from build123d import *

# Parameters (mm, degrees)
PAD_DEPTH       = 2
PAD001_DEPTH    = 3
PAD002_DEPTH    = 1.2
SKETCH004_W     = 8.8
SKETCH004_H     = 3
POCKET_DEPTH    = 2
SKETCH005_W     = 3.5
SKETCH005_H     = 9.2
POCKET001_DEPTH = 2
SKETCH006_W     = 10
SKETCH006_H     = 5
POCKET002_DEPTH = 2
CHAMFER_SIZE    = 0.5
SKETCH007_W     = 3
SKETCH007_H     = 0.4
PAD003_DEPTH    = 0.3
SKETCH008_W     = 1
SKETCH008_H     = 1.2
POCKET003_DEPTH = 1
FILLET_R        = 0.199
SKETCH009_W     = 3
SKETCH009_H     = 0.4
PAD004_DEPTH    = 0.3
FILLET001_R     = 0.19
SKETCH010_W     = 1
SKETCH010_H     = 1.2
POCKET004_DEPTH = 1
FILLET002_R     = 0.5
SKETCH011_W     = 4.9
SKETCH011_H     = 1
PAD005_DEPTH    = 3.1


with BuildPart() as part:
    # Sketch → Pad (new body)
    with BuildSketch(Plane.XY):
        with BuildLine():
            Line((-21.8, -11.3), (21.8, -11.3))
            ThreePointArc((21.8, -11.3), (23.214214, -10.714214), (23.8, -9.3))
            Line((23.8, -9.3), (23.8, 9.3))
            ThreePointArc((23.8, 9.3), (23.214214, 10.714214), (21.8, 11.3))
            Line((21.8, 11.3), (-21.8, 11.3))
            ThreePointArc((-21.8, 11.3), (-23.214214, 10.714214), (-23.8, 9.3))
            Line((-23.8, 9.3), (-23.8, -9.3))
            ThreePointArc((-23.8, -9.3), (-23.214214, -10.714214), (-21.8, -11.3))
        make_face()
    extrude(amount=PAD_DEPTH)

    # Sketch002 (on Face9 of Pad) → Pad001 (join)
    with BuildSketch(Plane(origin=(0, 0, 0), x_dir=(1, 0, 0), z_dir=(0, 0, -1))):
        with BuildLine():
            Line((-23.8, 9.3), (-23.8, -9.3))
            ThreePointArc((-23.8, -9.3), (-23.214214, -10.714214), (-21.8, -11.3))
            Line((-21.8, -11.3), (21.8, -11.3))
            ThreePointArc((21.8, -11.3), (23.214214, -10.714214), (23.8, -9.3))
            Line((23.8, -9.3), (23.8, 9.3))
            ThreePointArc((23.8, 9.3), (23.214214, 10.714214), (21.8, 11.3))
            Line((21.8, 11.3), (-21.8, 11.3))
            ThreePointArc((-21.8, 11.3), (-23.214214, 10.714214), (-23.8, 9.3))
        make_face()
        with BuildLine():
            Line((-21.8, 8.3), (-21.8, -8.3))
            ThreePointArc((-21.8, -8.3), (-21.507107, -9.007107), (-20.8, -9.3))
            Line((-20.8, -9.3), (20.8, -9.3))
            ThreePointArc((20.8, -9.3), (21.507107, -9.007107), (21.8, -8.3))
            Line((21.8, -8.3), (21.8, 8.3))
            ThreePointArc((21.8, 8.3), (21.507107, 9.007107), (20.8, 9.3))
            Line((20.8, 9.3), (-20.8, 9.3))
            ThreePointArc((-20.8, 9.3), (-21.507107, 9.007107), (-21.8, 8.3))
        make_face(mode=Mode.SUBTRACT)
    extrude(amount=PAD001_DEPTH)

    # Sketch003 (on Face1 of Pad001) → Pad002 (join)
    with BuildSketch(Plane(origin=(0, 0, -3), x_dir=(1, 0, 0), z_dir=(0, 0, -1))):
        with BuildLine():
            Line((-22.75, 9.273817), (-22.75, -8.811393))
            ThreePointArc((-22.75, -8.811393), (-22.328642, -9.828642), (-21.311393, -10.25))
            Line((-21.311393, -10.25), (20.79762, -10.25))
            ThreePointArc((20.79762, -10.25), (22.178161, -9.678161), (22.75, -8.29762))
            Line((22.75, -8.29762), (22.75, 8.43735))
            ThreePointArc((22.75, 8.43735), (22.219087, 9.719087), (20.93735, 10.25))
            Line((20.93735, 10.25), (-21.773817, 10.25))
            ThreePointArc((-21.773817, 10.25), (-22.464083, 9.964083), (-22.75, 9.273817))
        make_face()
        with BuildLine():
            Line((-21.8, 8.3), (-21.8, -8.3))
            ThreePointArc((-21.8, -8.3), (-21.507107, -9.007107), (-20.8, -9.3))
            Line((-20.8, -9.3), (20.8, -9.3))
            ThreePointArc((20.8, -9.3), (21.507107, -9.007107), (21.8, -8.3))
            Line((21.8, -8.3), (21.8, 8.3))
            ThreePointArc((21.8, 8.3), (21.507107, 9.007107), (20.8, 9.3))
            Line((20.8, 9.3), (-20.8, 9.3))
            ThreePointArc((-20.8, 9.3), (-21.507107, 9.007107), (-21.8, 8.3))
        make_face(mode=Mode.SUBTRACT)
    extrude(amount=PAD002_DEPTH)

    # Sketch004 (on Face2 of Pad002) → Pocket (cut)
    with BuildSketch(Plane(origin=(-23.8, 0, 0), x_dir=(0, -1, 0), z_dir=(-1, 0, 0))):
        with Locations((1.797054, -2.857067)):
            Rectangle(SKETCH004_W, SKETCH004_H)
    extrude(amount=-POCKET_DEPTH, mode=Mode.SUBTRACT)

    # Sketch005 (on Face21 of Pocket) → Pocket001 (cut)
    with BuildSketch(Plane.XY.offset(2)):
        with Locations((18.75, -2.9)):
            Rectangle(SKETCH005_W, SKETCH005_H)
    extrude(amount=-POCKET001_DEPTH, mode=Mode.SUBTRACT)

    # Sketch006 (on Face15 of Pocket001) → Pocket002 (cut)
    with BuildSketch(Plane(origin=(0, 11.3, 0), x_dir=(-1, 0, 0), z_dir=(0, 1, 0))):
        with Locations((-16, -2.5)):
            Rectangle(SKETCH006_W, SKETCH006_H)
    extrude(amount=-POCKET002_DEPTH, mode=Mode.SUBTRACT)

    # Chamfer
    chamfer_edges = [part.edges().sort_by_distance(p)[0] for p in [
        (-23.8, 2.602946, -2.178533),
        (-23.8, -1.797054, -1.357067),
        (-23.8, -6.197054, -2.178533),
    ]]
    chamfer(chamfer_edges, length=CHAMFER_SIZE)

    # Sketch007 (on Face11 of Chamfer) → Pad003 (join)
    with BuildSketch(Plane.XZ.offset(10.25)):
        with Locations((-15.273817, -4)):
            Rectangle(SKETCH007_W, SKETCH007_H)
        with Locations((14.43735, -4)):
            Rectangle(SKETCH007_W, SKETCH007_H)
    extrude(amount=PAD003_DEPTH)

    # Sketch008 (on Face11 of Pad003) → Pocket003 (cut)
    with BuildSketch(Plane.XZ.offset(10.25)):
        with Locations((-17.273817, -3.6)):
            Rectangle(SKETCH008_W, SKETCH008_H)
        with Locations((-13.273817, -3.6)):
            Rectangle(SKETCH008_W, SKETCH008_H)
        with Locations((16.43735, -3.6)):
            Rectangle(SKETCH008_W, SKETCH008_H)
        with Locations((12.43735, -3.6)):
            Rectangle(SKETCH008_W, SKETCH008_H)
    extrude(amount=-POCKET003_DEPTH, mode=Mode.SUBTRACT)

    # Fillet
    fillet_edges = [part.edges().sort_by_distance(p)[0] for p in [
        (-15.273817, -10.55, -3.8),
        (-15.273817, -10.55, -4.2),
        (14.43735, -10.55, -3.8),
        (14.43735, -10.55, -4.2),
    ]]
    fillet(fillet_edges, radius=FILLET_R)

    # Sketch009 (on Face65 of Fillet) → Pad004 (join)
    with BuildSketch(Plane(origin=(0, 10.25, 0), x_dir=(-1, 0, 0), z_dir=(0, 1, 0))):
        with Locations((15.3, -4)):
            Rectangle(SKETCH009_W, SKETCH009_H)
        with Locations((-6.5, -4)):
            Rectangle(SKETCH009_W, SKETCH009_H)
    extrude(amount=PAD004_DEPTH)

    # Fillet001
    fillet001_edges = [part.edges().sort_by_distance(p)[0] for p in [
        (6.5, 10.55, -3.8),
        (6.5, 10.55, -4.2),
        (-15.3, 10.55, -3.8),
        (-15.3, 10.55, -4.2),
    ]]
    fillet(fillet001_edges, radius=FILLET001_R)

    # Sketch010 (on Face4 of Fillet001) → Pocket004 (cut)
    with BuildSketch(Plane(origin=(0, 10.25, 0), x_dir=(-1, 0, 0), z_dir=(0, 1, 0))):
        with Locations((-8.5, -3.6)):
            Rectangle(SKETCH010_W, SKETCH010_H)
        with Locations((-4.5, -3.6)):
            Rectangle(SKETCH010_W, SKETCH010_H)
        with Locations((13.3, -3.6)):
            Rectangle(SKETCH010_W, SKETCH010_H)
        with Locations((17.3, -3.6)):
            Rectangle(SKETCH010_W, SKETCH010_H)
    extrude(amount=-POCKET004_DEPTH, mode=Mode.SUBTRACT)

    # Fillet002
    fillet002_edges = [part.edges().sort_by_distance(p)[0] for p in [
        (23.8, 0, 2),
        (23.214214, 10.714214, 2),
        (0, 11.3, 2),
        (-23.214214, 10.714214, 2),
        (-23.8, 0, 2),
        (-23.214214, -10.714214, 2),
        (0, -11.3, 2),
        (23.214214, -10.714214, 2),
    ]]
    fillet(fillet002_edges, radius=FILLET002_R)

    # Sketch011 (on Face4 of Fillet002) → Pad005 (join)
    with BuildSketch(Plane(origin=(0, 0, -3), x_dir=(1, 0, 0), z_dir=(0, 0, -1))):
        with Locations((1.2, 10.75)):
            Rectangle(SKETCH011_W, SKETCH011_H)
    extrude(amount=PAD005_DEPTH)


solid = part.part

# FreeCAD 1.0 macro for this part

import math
import FreeCAD as App
import Part
import Sketcher

V = App.Vector


def edges_at(feature, points):
    """Names of the edges that pass closest to the given points."""
    edges = feature.Shape.Edges
    near = lambda p: min(range(len(edges)), key=lambda i: edges[i].distToShape(Part.Vertex(*p))[0])
    return sorted({f"Edge{near(p) + 1}" for p in points})


def add_polygon(sketch, points):
    """Adds a closed chain of lines whose ends are joined by coincident constraints."""
    first, n = sketch.GeometryCount, len(points)
    for a, b in zip(points, points[1:] + points[:1]):
        sketch.addGeometry(Part.LineSegment(App.Vector(*a, 0), App.Vector(*b, 0)), False)
    for i in range(n):
        sketch.addConstraint(Sketcher.Constraint("Coincident", first + i, 2, first + (i + 1) % n, 1))

doc = App.newDocument("Part")
params = doc.addObject("Spreadsheet::Sheet", "Params")
for row, (alias, value) in enumerate([
    ("sketch1_radius", "1.999999 mm"),
    ("sketch1_width", "43.6 mm"),
    ("sketch1_height", "18.6 mm"),
    ("pad1_length", "2 mm"),
    ("sketch2_radius", "1.999999 mm"),
    ("sketch2_radius2", "0.999999 mm"),
    ("sketch2_width", "43.6 mm"),
    ("sketch2_height", "18.6 mm"),
    ("pad2_length", "3 mm"),
    ("sketch3_radius", "0.999999 mm"),
    ("sketch3_width", "41.6 mm"),
    ("sketch3_height", "16.6 mm"),
    ("pad3_length", "1.2 mm"),
    ("sketch4_height", "3 mm"),
    ("sketch4_width", "8.8 mm"),
    ("pocket1_length", "2 mm"),
    ("sketch5_width", "3.5 mm"),
    ("sketch5_height", "9.2 mm"),
    ("pocket2_length", "2 mm"),
    ("sketch6_width", "10 mm"),
    ("sketch6_height", "5 mm"),
    ("pocket3_length", "2 mm"),
    ("chamfer_size", "0.5 mm"),
    ("sketch7_width", "3 mm"),
    ("sketch7_height", "0.4 mm"),
    ("pad4_length", "0.3 mm"),
    ("sketch8_width", "1 mm"),
    ("sketch8_height", "1.2 mm"),
    ("pocket4_length", "1 mm"),
    ("fillet_radius", "0.199 mm"),
    ("sketch9_width", "3 mm"),
    ("sketch9_height", "0.4 mm"),
    ("pad5_length", "0.3 mm"),
    ("fillet2_radius", "0.19 mm"),
    ("sketch10_width", "1 mm"),
    ("sketch10_height", "1.2 mm"),
    ("pocket5_length", "1 mm"),
    ("fillet3_radius", "0.5 mm"),
    ("sketch11_height", "1 mm"),
    ("sketch11_width", "4.9 mm"),
    ("pad6_length", "3.1 mm"),
], start=1):
    params.set(f"A{row}", alias)
    params.set(f"B{row}", "=" + value)
    params.setAlias(f"B{row}", alias)

body = doc.addObject("PartDesign::Body", "Body")

# Sketch on XY plane
sketch1 = doc.addObject("Sketcher::SketchObject", "Sketch")
body.addObject(sketch1)
sketch1.AttachmentSupport = (doc.XY_Plane, [""])
sketch1.MapMode = "FlatFace"
sketch1.addGeometry(Part.LineSegment(V(-21.8, -11.3, 0), V(21.8, -11.3, 0)), False)
sketch1.addGeometry(Part.ArcOfCircle(Part.Circle(V(21.8, -9.3, 0), V(0, 0, 1), 2), math.radians(-90), math.radians(0)), False)
sketch1.addGeometry(Part.LineSegment(V(23.8, -9.3, 0), V(23.8, 9.3, 0)), False)
sketch1.addGeometry(Part.ArcOfCircle(Part.Circle(V(21.8, 9.3, 0), V(0, 0, 1), 2), math.radians(0), math.radians(90)), False)
sketch1.addGeometry(Part.LineSegment(V(21.8, 11.3, 0), V(-21.8, 11.3, 0)), False)
sketch1.addGeometry(Part.ArcOfCircle(Part.Circle(V(-21.8, 9.3, 0), V(0, 0, 1), 2), math.radians(90), math.radians(180)), False)
sketch1.addGeometry(Part.LineSegment(V(-23.8, 9.3, 0), V(-23.8, -9.3, 0)), False)
sketch1.addGeometry(Part.ArcOfCircle(Part.Circle(V(-21.8, -9.3, 0), V(0, 0, 1), 2), math.radians(180), math.radians(270)), False)
sketch1.addConstraint(Sketcher.Constraint("Tangent", 0, 2, 1, 1))
sketch1.addConstraint(Sketcher.Constraint("Tangent", 1, 2, 2, 1))
sketch1.addConstraint(Sketcher.Constraint("Tangent", 2, 2, 3, 1))
sketch1.addConstraint(Sketcher.Constraint("Tangent", 3, 2, 4, 1))
sketch1.addConstraint(Sketcher.Constraint("Tangent", 4, 2, 5, 1))
sketch1.addConstraint(Sketcher.Constraint("Tangent", 5, 2, 6, 1))
sketch1.addConstraint(Sketcher.Constraint("Tangent", 6, 2, 7, 1))
sketch1.addConstraint(Sketcher.Constraint("Tangent", 7, 2, 0, 1))
sketch1.addConstraint(Sketcher.Constraint("Horizontal", 0))
sketch1.addConstraint(Sketcher.Constraint("Vertical", 2))
sketch1.addConstraint(Sketcher.Constraint("Horizontal", 4))
sketch1.addConstraint(Sketcher.Constraint("Vertical", 6))
sketch1.addConstraint(Sketcher.Constraint("Equal", 1, 3))
sketch1.addConstraint(Sketcher.Constraint("Equal", 3, 5))
sketch1.addConstraint(Sketcher.Constraint("Equal", 5, 7))
sketch1.addConstraint(Sketcher.Constraint("Symmetric", 1, 3, 5, 3, -1, 1))
sketch1.addConstraint(Sketcher.Constraint("Radius", 1, 1.999999))
sketch1.addConstraint(Sketcher.Constraint("DistanceX", 0, 1, 0, 2, 43.6))
sketch1.addConstraint(Sketcher.Constraint("DistanceY", 2, 1, 2, 2, 18.6))
sketch1.setExpression("Constraints[16]", "Params.sketch1_radius")
sketch1.setExpression("Constraints[17]", "Params.sketch1_width")
sketch1.setExpression("Constraints[18]", "Params.sketch1_height")
pad1 = doc.addObject("PartDesign::Pad", "Pad")
body.addObject(pad1)
pad1.Profile = sketch1
pad1.setExpression("Length", "Params.pad1_length")

# Sketch on XY plane
sketch2 = doc.addObject("Sketcher::SketchObject", "Sketch001")
body.addObject(sketch2)
sketch2.AttachmentSupport = (doc.XY_Plane, [""])
sketch2.MapMode = "FlatFace"
sketch2.addGeometry(Part.LineSegment(V(-23.8, -9.3, 0), V(-23.8, 9.3, 0)), False)
sketch2.addGeometry(Part.ArcOfCircle(Part.Circle(V(-21.8, 9.3, 0), V(0, 0, 1), 2), math.radians(90), math.radians(180)), False)
sketch2.addGeometry(Part.LineSegment(V(-21.8, 11.3, 0), V(21.8, 11.3, 0)), False)
sketch2.addGeometry(Part.ArcOfCircle(Part.Circle(V(21.8, 9.3, 0), V(0, 0, 1), 2), math.radians(0), math.radians(90)), False)
sketch2.addGeometry(Part.LineSegment(V(23.8, 9.3, 0), V(23.8, -9.3, 0)), False)
sketch2.addGeometry(Part.ArcOfCircle(Part.Circle(V(21.8, -9.3, 0), V(0, 0, 1), 2), math.radians(-90), math.radians(0)), False)
sketch2.addGeometry(Part.LineSegment(V(21.8, -11.3, 0), V(-21.8, -11.3, 0)), False)
sketch2.addGeometry(Part.ArcOfCircle(Part.Circle(V(-21.8, -9.3, 0), V(0, 0, 1), 2), math.radians(180), math.radians(270)), False)
sketch2.addGeometry(Part.LineSegment(V(-21.8, 8.3, 0), V(-21.8, -8.3, 0)), False)
sketch2.addGeometry(Part.ArcOfCircle(Part.Circle(V(-20.8, -8.3, 0), V(0, 0, 1), 1), math.radians(180), math.radians(270)), False)
sketch2.addGeometry(Part.LineSegment(V(-20.8, -9.3, 0), V(20.8, -9.3, 0)), False)
sketch2.addGeometry(Part.ArcOfCircle(Part.Circle(V(20.8, -8.3, 0), V(0, 0, 1), 1), math.radians(-90), math.radians(0)), False)
sketch2.addGeometry(Part.LineSegment(V(21.8, -8.3, 0), V(21.8, 8.3, 0)), False)
sketch2.addGeometry(Part.ArcOfCircle(Part.Circle(V(20.8, 8.3, 0), V(0, 0, 1), 1), math.radians(0), math.radians(90)), False)
sketch2.addGeometry(Part.LineSegment(V(20.8, 9.3, 0), V(-20.8, 9.3, 0)), False)
sketch2.addGeometry(Part.ArcOfCircle(Part.Circle(V(-20.8, 8.3, 0), V(0, 0, 1), 1), math.radians(90), math.radians(180)), False)
sketch2.addConstraint(Sketcher.Constraint("Tangent", 0, 2, 1, 2))
sketch2.addConstraint(Sketcher.Constraint("Tangent", 1, 1, 2, 1))
sketch2.addConstraint(Sketcher.Constraint("Tangent", 2, 2, 3, 2))
sketch2.addConstraint(Sketcher.Constraint("Tangent", 3, 1, 4, 1))
sketch2.addConstraint(Sketcher.Constraint("Tangent", 4, 2, 5, 2))
sketch2.addConstraint(Sketcher.Constraint("Tangent", 5, 1, 6, 1))
sketch2.addConstraint(Sketcher.Constraint("Tangent", 6, 2, 7, 2))
sketch2.addConstraint(Sketcher.Constraint("Tangent", 7, 1, 0, 1))
sketch2.addConstraint(Sketcher.Constraint("Tangent", 8, 2, 9, 1))
sketch2.addConstraint(Sketcher.Constraint("Tangent", 9, 2, 10, 1))
sketch2.addConstraint(Sketcher.Constraint("Tangent", 10, 2, 11, 1))
sketch2.addConstraint(Sketcher.Constraint("Tangent", 11, 2, 12, 1))
sketch2.addConstraint(Sketcher.Constraint("Tangent", 12, 2, 13, 1))
sketch2.addConstraint(Sketcher.Constraint("Tangent", 13, 2, 14, 1))
sketch2.addConstraint(Sketcher.Constraint("Tangent", 14, 2, 15, 1))
sketch2.addConstraint(Sketcher.Constraint("Tangent", 15, 2, 8, 1))
sketch2.addConstraint(Sketcher.Constraint("Vertical", 0))
sketch2.addConstraint(Sketcher.Constraint("Horizontal", 2))
sketch2.addConstraint(Sketcher.Constraint("Vertical", 4))
sketch2.addConstraint(Sketcher.Constraint("Horizontal", 6))
sketch2.addConstraint(Sketcher.Constraint("Vertical", 8))
sketch2.addConstraint(Sketcher.Constraint("Horizontal", 10))
sketch2.addConstraint(Sketcher.Constraint("Vertical", 12))
sketch2.addConstraint(Sketcher.Constraint("Horizontal", 14))
sketch2.addConstraint(Sketcher.Constraint("Equal", 1, 3))
sketch2.addConstraint(Sketcher.Constraint("Equal", 3, 5))
sketch2.addConstraint(Sketcher.Constraint("Equal", 5, 7))
sketch2.addConstraint(Sketcher.Constraint("Equal", 9, 11))
sketch2.addConstraint(Sketcher.Constraint("Equal", 11, 13))
sketch2.addConstraint(Sketcher.Constraint("Equal", 13, 15))
sketch2.addConstraint(Sketcher.Constraint("Symmetric", 1, 3, 5, 3, -1, 1))
sketch2.addConstraint(Sketcher.Constraint("Symmetric", 9, 3, 13, 3, -1, 1))
sketch2.addConstraint(Sketcher.Constraint("Horizontal", 7, 1, 9, 2))
sketch2.addConstraint(Sketcher.Constraint("Vertical", 6, 2, 8, 2))
sketch2.addConstraint(Sketcher.Constraint("Radius", 1, 1.999999))
sketch2.addConstraint(Sketcher.Constraint("Radius", 9, 0.999999))
sketch2.addConstraint(Sketcher.Constraint("DistanceX", 2, 1, 2, 2, 43.6))
sketch2.addConstraint(Sketcher.Constraint("DistanceY", 0, 1, 0, 2, 18.6))
sketch2.setExpression("Constraints[34]", "Params.sketch2_radius")
sketch2.setExpression("Constraints[35]", "Params.sketch2_radius2")
sketch2.setExpression("Constraints[36]", "Params.sketch2_width")
sketch2.setExpression("Constraints[37]", "Params.sketch2_height")
pad2 = doc.addObject("PartDesign::Pad", "Pad001")
body.addObject(pad2)
pad2.Profile = sketch2
pad2.setExpression("Length", "Params.pad2_length")
pad2.Reversed = True

# Sketch on XY plane
sketch3 = doc.addObject("Sketcher::SketchObject", "Sketch002")
body.addObject(sketch3)
sketch3.AttachmentSupport = (doc.XY_Plane, [""])
sketch3.MapMode = "FlatFace"
sketch3.AttachmentOffset = App.Placement(V(0, 0, -3), App.Rotation())
sketch3.addGeometry(Part.LineSegment(V(-22.8, -9.3, 0), V(-22.8, 8.8, 0)), False)
sketch3.addGeometry(Part.ArcOfCircle(Part.Circle(V(-21.3, 8.8, 0), V(0, 0, 1), 1.4), math.radians(90), math.radians(180)), False)
sketch3.addGeometry(Part.LineSegment(V(-21.3, 10.2, 0), V(20.8, 10.2, 0)), False)
sketch3.addGeometry(Part.ArcOfCircle(Part.Circle(V(20.8, 8.3, 0), V(0, 0, 1), 2), math.radians(0), math.radians(90)), False)
sketch3.addGeometry(Part.LineSegment(V(22.8, 8.3, 0), V(22.8, -8.4, 0)), False)
sketch3.addGeometry(Part.ArcOfCircle(Part.Circle(V(20.9, -8.4, 0), V(0, 0, 1), 1.8), math.radians(-90), math.radians(0)), False)
sketch3.addGeometry(Part.LineSegment(V(20.9, -10.2, 0), V(-21.8, -10.2, 0)), False)
sketch3.addGeometry(Part.ArcOfCircle(Part.Circle(V(-21.8, -9.3, 0), V(0, 0, 1), 1), math.radians(180), math.radians(270)), False)
sketch3.addGeometry(Part.LineSegment(V(-21.8, 8.3, 0), V(-21.8, -8.3, 0)), False)
sketch3.addGeometry(Part.ArcOfCircle(Part.Circle(V(-20.8, -8.3, 0), V(0, 0, 1), 1), math.radians(180), math.radians(270)), False)
sketch3.addGeometry(Part.LineSegment(V(-20.8, -9.3, 0), V(20.8, -9.3, 0)), False)
sketch3.addGeometry(Part.ArcOfCircle(Part.Circle(V(20.8, -8.3, 0), V(0, 0, 1), 1), math.radians(-90), math.radians(0)), False)
sketch3.addGeometry(Part.LineSegment(V(21.8, -8.3, 0), V(21.8, 8.3, 0)), False)
sketch3.addGeometry(Part.ArcOfCircle(Part.Circle(V(20.8, 8.3, 0), V(0, 0, 1), 1), math.radians(0), math.radians(90)), False)
sketch3.addGeometry(Part.LineSegment(V(20.8, 9.3, 0), V(-20.8, 9.3, 0)), False)
sketch3.addGeometry(Part.ArcOfCircle(Part.Circle(V(-20.8, 8.3, 0), V(0, 0, 1), 1), math.radians(90), math.radians(180)), False)
sketch3.addConstraint(Sketcher.Constraint("Tangent", 0, 2, 1, 2))
sketch3.addConstraint(Sketcher.Constraint("Tangent", 1, 1, 2, 1))
sketch3.addConstraint(Sketcher.Constraint("Tangent", 2, 2, 3, 2))
sketch3.addConstraint(Sketcher.Constraint("Tangent", 3, 1, 4, 1))
sketch3.addConstraint(Sketcher.Constraint("Tangent", 4, 2, 5, 2))
sketch3.addConstraint(Sketcher.Constraint("Tangent", 5, 1, 6, 1))
sketch3.addConstraint(Sketcher.Constraint("Tangent", 6, 2, 7, 2))
sketch3.addConstraint(Sketcher.Constraint("Tangent", 7, 1, 0, 1))
sketch3.addConstraint(Sketcher.Constraint("Tangent", 8, 2, 9, 1))
sketch3.addConstraint(Sketcher.Constraint("Tangent", 9, 2, 10, 1))
sketch3.addConstraint(Sketcher.Constraint("Tangent", 10, 2, 11, 1))
sketch3.addConstraint(Sketcher.Constraint("Tangent", 11, 2, 12, 1))
sketch3.addConstraint(Sketcher.Constraint("Tangent", 12, 2, 13, 1))
sketch3.addConstraint(Sketcher.Constraint("Tangent", 13, 2, 14, 1))
sketch3.addConstraint(Sketcher.Constraint("Tangent", 14, 2, 15, 1))
sketch3.addConstraint(Sketcher.Constraint("Tangent", 15, 2, 8, 1))
sketch3.addConstraint(Sketcher.Constraint("Vertical", 0))
sketch3.addConstraint(Sketcher.Constraint("Horizontal", 2))
sketch3.addConstraint(Sketcher.Constraint("Vertical", 4))
sketch3.addConstraint(Sketcher.Constraint("Horizontal", 6))
sketch3.addConstraint(Sketcher.Constraint("Vertical", 8))
sketch3.addConstraint(Sketcher.Constraint("Horizontal", 10))
sketch3.addConstraint(Sketcher.Constraint("Vertical", 12))
sketch3.addConstraint(Sketcher.Constraint("Horizontal", 14))
sketch3.addConstraint(Sketcher.Constraint("Equal", 9, 11))
sketch3.addConstraint(Sketcher.Constraint("Equal", 11, 13))
sketch3.addConstraint(Sketcher.Constraint("Equal", 13, 15))
sketch3.addConstraint(Sketcher.Constraint("Symmetric", 9, 3, 13, 3, -1, 1))
sketch3.addConstraint(Sketcher.Constraint("Radius", 9, 0.999999))
sketch3.addConstraint(Sketcher.Constraint("DistanceX", 10, 1, 10, 2, 41.6))
sketch3.addConstraint(Sketcher.Constraint("DistanceY", 8, 2, 8, 1, 16.6))
sketch3.addConstraint(Sketcher.Constraint("DistanceX", 0, 2, -1, 1, 22.75))
sketch3.addConstraint(Sketcher.Constraint("DistanceY", -1, 1, 1, 1, 10.25))
sketch3.addConstraint(Sketcher.Constraint("DistanceX", -1, 1, 3, 1, 22.75))
sketch3.addConstraint(Sketcher.Constraint("DistanceY", 5, 1, -1, 1, 10.25))
sketch3.addConstraint(Sketcher.Constraint("Radius", 3, 1.95238))
sketch3.addConstraint(Sketcher.Constraint("Radius", 5, 1.81265))
sketch3.addConstraint(Sketcher.Constraint("Radius", 7, 0.976182))
sketch3.addConstraint(Sketcher.Constraint("Radius", 1, 1.438606))
sketch3.setExpression("Constraints[28]", "Params.sketch3_radius")
sketch3.setExpression("Constraints[29]", "Params.sketch3_width")
sketch3.setExpression("Constraints[30]", "Params.sketch3_height")
pad3 = doc.addObject("PartDesign::Pad", "Pad002")
body.addObject(pad3)
pad3.Profile = sketch3
pad3.setExpression("Length", "Params.pad3_length")
pad3.Reversed = True

# Sketch on YZ plane
sketch4 = doc.addObject("Sketcher::SketchObject", "Sketch003")
body.addObject(sketch4)
sketch4.AttachmentSupport = (doc.YZ_Plane, [""])
sketch4.MapMode = "FlatFace"
sketch4.AttachmentOffset = App.Placement(V(0, 0, -23.8), App.Rotation())
add_polygon(sketch4, [(2.6, -1.4), (2.6, -4.4), (-6.2, -4.4), (-6.2, -1.4)])  # lines 0-3
sketch4.addConstraint(Sketcher.Constraint("Vertical", 0))
sketch4.addConstraint(Sketcher.Constraint("Horizontal", 1))
sketch4.addConstraint(Sketcher.Constraint("Vertical", 2))
sketch4.addConstraint(Sketcher.Constraint("Horizontal", 3))
sketch4.addConstraint(Sketcher.Constraint("DistanceY", 0, 2, 0, 1, 3.0))
sketch4.addConstraint(Sketcher.Constraint("DistanceX", 1, 2, 1, 1, 8.8))
sketch4.addConstraint(Sketcher.Constraint("DistanceX", -1, 1, 0, 2, 2.602946))
sketch4.addConstraint(Sketcher.Constraint("DistanceY", 0, 2, -1, 1, 4.357067))
sketch4.setExpression("Constraints[8]", "Params.sketch4_height")
sketch4.setExpression("Constraints[9]", "Params.sketch4_width")
pocket1 = doc.addObject("PartDesign::Pocket", "Pocket")
body.addObject(pocket1)
pocket1.Profile = sketch4
pocket1.setExpression("Length", "Params.pocket1_length")
pocket1.Reversed = True

# Sketch on XY plane
sketch5 = doc.addObject("Sketcher::SketchObject", "Sketch004")
body.addObject(sketch5)
sketch5.AttachmentSupport = (doc.XY_Plane, [""])
sketch5.MapMode = "FlatFace"
sketch5.AttachmentOffset = App.Placement(V(0, 0, 2), App.Rotation())
add_polygon(sketch5, [(17, 1.7), (17, -7.5), (20.5, -7.5), (20.5, 1.7)])  # lines 0-3
sketch5.addConstraint(Sketcher.Constraint("Vertical", 0))
sketch5.addConstraint(Sketcher.Constraint("Horizontal", 1))
sketch5.addConstraint(Sketcher.Constraint("Vertical", 2))
sketch5.addConstraint(Sketcher.Constraint("Horizontal", 3))
sketch5.addConstraint(Sketcher.Constraint("DistanceX", 1, 1, 1, 2, 3.5))
sketch5.addConstraint(Sketcher.Constraint("DistanceY", 0, 2, 0, 1, 9.2))
sketch5.addConstraint(Sketcher.Constraint("DistanceX", -1, 1, 0, 2, 17.0))
sketch5.addConstraint(Sketcher.Constraint("DistanceY", 0, 2, -1, 1, 7.5))
sketch5.setExpression("Constraints[8]", "Params.sketch5_width")
sketch5.setExpression("Constraints[9]", "Params.sketch5_height")
pocket2 = doc.addObject("PartDesign::Pocket", "Pocket001")
body.addObject(pocket2)
pocket2.Profile = sketch5
pocket2.setExpression("Length", "Params.pocket2_length")

# Sketch on XZ plane
sketch6 = doc.addObject("Sketcher::SketchObject", "Sketch005")
body.addObject(sketch6)
sketch6.AttachmentSupport = (doc.XZ_Plane, [""])
sketch6.MapMode = "FlatFace"
sketch6.AttachmentOffset = App.Placement(V(0, 0, -11.3), App.Rotation())
add_polygon(sketch6, [(21, 0), (21, -5), (11, -5), (11, 0)])  # lines 0-3
sketch6.addConstraint(Sketcher.Constraint("Vertical", 0))
sketch6.addConstraint(Sketcher.Constraint("Horizontal", 1))
sketch6.addConstraint(Sketcher.Constraint("Vertical", 2))
sketch6.addConstraint(Sketcher.Constraint("Horizontal", 3))
sketch6.addConstraint(Sketcher.Constraint("PointOnObject", 2, 2, -1))
sketch6.addConstraint(Sketcher.Constraint("DistanceX", 1, 2, 1, 1, 10.0))
sketch6.addConstraint(Sketcher.Constraint("DistanceY", 0, 2, 0, 1, 5.0))
sketch6.addConstraint(Sketcher.Constraint("DistanceX", -1, 1, 0, 2, 21.0))
sketch6.setExpression("Constraints[9]", "Params.sketch6_width")
sketch6.setExpression("Constraints[10]", "Params.sketch6_height")
pocket3 = doc.addObject("PartDesign::Pocket", "Pocket002")
body.addObject(pocket3)
pocket3.Profile = sketch6
pocket3.setExpression("Length", "Params.pocket3_length")
pocket3.Reversed = True
doc.recompute()

chamfer = doc.addObject("PartDesign::Chamfer", "Chamfer")
body.addObject(chamfer)
chamfer.Base = (pocket3, edges_at(pocket3, [(-23.8, 2.603, -2.179), (-23.8, -1.797, -1.357), (-23.8, -6.197, -2.179)]))
chamfer.setExpression("Size", "Params.chamfer_size")

# Sketch on XZ plane
sketch7 = doc.addObject("Sketcher::SketchObject", "Sketch006")
body.addObject(sketch7)
sketch7.AttachmentSupport = (doc.XZ_Plane, [""])
sketch7.MapMode = "FlatFace"
sketch7.AttachmentOffset = App.Placement(V(0, 0, 10.25), App.Rotation())
add_polygon(sketch7, [(-16.77, -3.8), (-16.77, -4.2), (-13.77, -4.2), (-13.77, -3.8)])  # lines 0-3
add_polygon(sketch7, [(12.94, -3.8), (12.94, -4.2), (15.94, -4.2), (15.94, -3.8)])  # lines 4-7
sketch7.addConstraint(Sketcher.Constraint("Vertical", 0))
sketch7.addConstraint(Sketcher.Constraint("Horizontal", 1))
sketch7.addConstraint(Sketcher.Constraint("Vertical", 2))
sketch7.addConstraint(Sketcher.Constraint("Horizontal", 3))
sketch7.addConstraint(Sketcher.Constraint("Vertical", 4))
sketch7.addConstraint(Sketcher.Constraint("Horizontal", 5))
sketch7.addConstraint(Sketcher.Constraint("Vertical", 6))
sketch7.addConstraint(Sketcher.Constraint("Horizontal", 7))
sketch7.addConstraint(Sketcher.Constraint("Horizontal", 1, 2, 4, 2))
sketch7.addConstraint(Sketcher.Constraint("Horizontal", 3, 2, 6, 2))
sketch7.addConstraint(Sketcher.Constraint("Equal", 3, 5))
sketch7.addConstraint(Sketcher.Constraint("DistanceX", 1, 1, 1, 2, 3.0))
sketch7.addConstraint(Sketcher.Constraint("DistanceY", 0, 2, 0, 1, 0.4))
sketch7.addConstraint(Sketcher.Constraint("DistanceY", 0, 2, -1, 1, 4.2))
sketch7.addConstraint(Sketcher.Constraint("DistanceX", -1, 1, 4, 2, 12.93735))
sketch7.addConstraint(Sketcher.Constraint("DistanceX", 0, 2, -1, 1, 16.773817))
sketch7.setExpression("Constraints[19]", "Params.sketch7_width")
sketch7.setExpression("Constraints[20]", "Params.sketch7_height")
pad4 = doc.addObject("PartDesign::Pad", "Pad003")
body.addObject(pad4)
pad4.Profile = sketch7
pad4.setExpression("Length", "Params.pad4_length")

# Sketch on XZ plane
sketch8 = doc.addObject("Sketcher::SketchObject", "Sketch007")
body.addObject(sketch8)
sketch8.AttachmentSupport = (doc.XZ_Plane, [""])
sketch8.MapMode = "FlatFace"
sketch8.AttachmentOffset = App.Placement(V(0, 0, 10.25), App.Rotation())
add_polygon(sketch8, [(-17.8, -3), (-17.8, -4.2), (-16.8, -4.2), (-16.8, -3)])  # lines 0-3
add_polygon(sketch8, [(-13.8, -3), (-13.8, -4.2), (-12.8, -4.2), (-12.8, -3)])  # lines 4-7
add_polygon(sketch8, [(15.9, -3), (15.9, -4.2), (16.9, -4.2), (16.9, -3)])  # lines 8-11
add_polygon(sketch8, [(11.9, -3), (11.9, -4.2), (12.9, -4.2), (12.9, -3)])  # lines 12-15
sketch8.addConstraint(Sketcher.Constraint("Vertical", 0))
sketch8.addConstraint(Sketcher.Constraint("Horizontal", 1))
sketch8.addConstraint(Sketcher.Constraint("Vertical", 2))
sketch8.addConstraint(Sketcher.Constraint("Horizontal", 3))
sketch8.addConstraint(Sketcher.Constraint("Vertical", 4))
sketch8.addConstraint(Sketcher.Constraint("Horizontal", 5))
sketch8.addConstraint(Sketcher.Constraint("Vertical", 6))
sketch8.addConstraint(Sketcher.Constraint("Horizontal", 7))
sketch8.addConstraint(Sketcher.Constraint("Vertical", 8))
sketch8.addConstraint(Sketcher.Constraint("Horizontal", 9))
sketch8.addConstraint(Sketcher.Constraint("Vertical", 10))
sketch8.addConstraint(Sketcher.Constraint("Horizontal", 11))
sketch8.addConstraint(Sketcher.Constraint("Vertical", 12))
sketch8.addConstraint(Sketcher.Constraint("Horizontal", 13))
sketch8.addConstraint(Sketcher.Constraint("Vertical", 14))
sketch8.addConstraint(Sketcher.Constraint("Horizontal", 15))
sketch8.addConstraint(Sketcher.Constraint("Horizontal", 1, 2, 4, 2))
sketch8.addConstraint(Sketcher.Constraint("Horizontal", 3, 2, 6, 2))
sketch8.addConstraint(Sketcher.Constraint("Horizontal", 5, 2, 8, 2))
sketch8.addConstraint(Sketcher.Constraint("Horizontal", 7, 2, 10, 2))
sketch8.addConstraint(Sketcher.Constraint("Horizontal", 9, 2, 12, 2))
sketch8.addConstraint(Sketcher.Constraint("Horizontal", 11, 2, 14, 2))
sketch8.addConstraint(Sketcher.Constraint("Equal", 3, 5))
sketch8.addConstraint(Sketcher.Constraint("Equal", 7, 9))
sketch8.addConstraint(Sketcher.Constraint("Equal", 11, 13))
sketch8.addConstraint(Sketcher.Constraint("DistanceX", 1, 1, 1, 2, 1.0))
sketch8.addConstraint(Sketcher.Constraint("DistanceY", 0, 2, 0, 1, 1.2))
sketch8.addConstraint(Sketcher.Constraint("DistanceY", 2, 2, -1, 1, 3.0))
sketch8.addConstraint(Sketcher.Constraint("DistanceX", 1, 2, 4, 2, 3.0))
sketch8.addConstraint(Sketcher.Constraint("DistanceX", 12, 2, 8, 2, 4.0))
sketch8.addConstraint(Sketcher.Constraint("DistanceX", -1, 1, 8, 2, 15.93735))
sketch8.addConstraint(Sketcher.Constraint("DistanceX", 0, 2, -1, 1, 17.773817))
sketch8.setExpression("Constraints[41]", "Params.sketch8_width")
sketch8.setExpression("Constraints[42]", "Params.sketch8_height")
pocket4 = doc.addObject("PartDesign::Pocket", "Pocket003")
body.addObject(pocket4)
pocket4.Profile = sketch8
pocket4.setExpression("Length", "Params.pocket4_length")
doc.recompute()

fillet = doc.addObject("PartDesign::Fillet", "Fillet")
body.addObject(fillet)
fillet.Base = (pocket4, edges_at(pocket4, [
    (-15.274, -10.55, -3.8),
    (-15.274, -10.55, -4.2),
    (14.437, -10.55, -3.8),
    (14.437, -10.55, -4.2),
]))
fillet.setExpression("Radius", "Params.fillet_radius")

# Sketch on XZ plane
sketch9 = doc.addObject("Sketcher::SketchObject", "Sketch008")
body.addObject(sketch9)
sketch9.AttachmentSupport = (doc.XZ_Plane, [""])
sketch9.MapMode = "FlatFace"
sketch9.AttachmentOffset = App.Placement(V(0, 0, -10.25), App.Rotation())
add_polygon(sketch9, [(-13.8, -3.8), (-13.8, -4.2), (-16.8, -4.2), (-16.8, -3.8)])  # lines 0-3
add_polygon(sketch9, [(8, -3.8), (8, -4.2), (5, -4.2), (5, -3.8)])  # lines 4-7
sketch9.addConstraint(Sketcher.Constraint("Vertical", 0))
sketch9.addConstraint(Sketcher.Constraint("Horizontal", 1))
sketch9.addConstraint(Sketcher.Constraint("Vertical", 2))
sketch9.addConstraint(Sketcher.Constraint("Horizontal", 3))
sketch9.addConstraint(Sketcher.Constraint("Vertical", 4))
sketch9.addConstraint(Sketcher.Constraint("Horizontal", 5))
sketch9.addConstraint(Sketcher.Constraint("Vertical", 6))
sketch9.addConstraint(Sketcher.Constraint("Horizontal", 7))
sketch9.addConstraint(Sketcher.Constraint("Horizontal", 1, 2, 4, 2))
sketch9.addConstraint(Sketcher.Constraint("Horizontal", 3, 2, 6, 2))
sketch9.addConstraint(Sketcher.Constraint("Equal", 3, 5))
sketch9.addConstraint(Sketcher.Constraint("DistanceX", 1, 2, 1, 1, 3.0))
sketch9.addConstraint(Sketcher.Constraint("DistanceY", 0, 2, 0, 1, 0.4))
sketch9.addConstraint(Sketcher.Constraint("DistanceX", -1, 1, 4, 2, 8.0))
sketch9.addConstraint(Sketcher.Constraint("DistanceX", 0, 2, -1, 1, 13.8))
sketch9.addConstraint(Sketcher.Constraint("DistanceY", 0, 2, -1, 1, 4.2))
sketch9.setExpression("Constraints[19]", "Params.sketch9_width")
sketch9.setExpression("Constraints[20]", "Params.sketch9_height")
pad5 = doc.addObject("PartDesign::Pad", "Pad004")
body.addObject(pad5)
pad5.Profile = sketch9
pad5.setExpression("Length", "Params.pad5_length")
pad5.Reversed = True
doc.recompute()

fillet2 = doc.addObject("PartDesign::Fillet", "Fillet001")
body.addObject(fillet2)
fillet2.Base = (pad5, edges_at(pad5, [
    (6.5, 10.55, -3.8),
    (6.5, 10.55, -4.2),
    (-15.3, 10.55, -3.8),
    (-15.3, 10.55, -4.2),
]))
fillet2.setExpression("Radius", "Params.fillet2_radius")

# Sketch on XZ plane
sketch10 = doc.addObject("Sketcher::SketchObject", "Sketch009")
body.addObject(sketch10)
sketch10.AttachmentSupport = (doc.XZ_Plane, [""])
sketch10.MapMode = "FlatFace"
sketch10.AttachmentOffset = App.Placement(V(0, 0, -10.25), App.Rotation())
add_polygon(sketch10, [(9, -3), (9, -4.2), (8, -4.2), (8, -3)])  # lines 0-3
add_polygon(sketch10, [(5, -3), (5, -4.2), (4, -4.2), (4, -3)])  # lines 4-7
add_polygon(sketch10, [(-12.8, -3), (-12.8, -4.2), (-13.8, -4.2), (-13.8, -3)])  # lines 8-11
add_polygon(sketch10, [(-16.8, -3), (-16.8, -4.2), (-17.8, -4.2), (-17.8, -3)])  # lines 12-15
sketch10.addConstraint(Sketcher.Constraint("Vertical", 0))
sketch10.addConstraint(Sketcher.Constraint("Horizontal", 1))
sketch10.addConstraint(Sketcher.Constraint("Vertical", 2))
sketch10.addConstraint(Sketcher.Constraint("Horizontal", 3))
sketch10.addConstraint(Sketcher.Constraint("Vertical", 4))
sketch10.addConstraint(Sketcher.Constraint("Horizontal", 5))
sketch10.addConstraint(Sketcher.Constraint("Vertical", 6))
sketch10.addConstraint(Sketcher.Constraint("Horizontal", 7))
sketch10.addConstraint(Sketcher.Constraint("Vertical", 8))
sketch10.addConstraint(Sketcher.Constraint("Horizontal", 9))
sketch10.addConstraint(Sketcher.Constraint("Vertical", 10))
sketch10.addConstraint(Sketcher.Constraint("Horizontal", 11))
sketch10.addConstraint(Sketcher.Constraint("Vertical", 12))
sketch10.addConstraint(Sketcher.Constraint("Horizontal", 13))
sketch10.addConstraint(Sketcher.Constraint("Vertical", 14))
sketch10.addConstraint(Sketcher.Constraint("Horizontal", 15))
sketch10.addConstraint(Sketcher.Constraint("Horizontal", 1, 2, 4, 2))
sketch10.addConstraint(Sketcher.Constraint("Horizontal", 3, 2, 6, 2))
sketch10.addConstraint(Sketcher.Constraint("Horizontal", 5, 2, 8, 2))
sketch10.addConstraint(Sketcher.Constraint("Horizontal", 7, 2, 10, 2))
sketch10.addConstraint(Sketcher.Constraint("Horizontal", 9, 2, 12, 2))
sketch10.addConstraint(Sketcher.Constraint("Horizontal", 11, 2, 14, 2))
sketch10.addConstraint(Sketcher.Constraint("Equal", 3, 5))
sketch10.addConstraint(Sketcher.Constraint("Equal", 7, 9))
sketch10.addConstraint(Sketcher.Constraint("Equal", 11, 13))
sketch10.addConstraint(Sketcher.Constraint("DistanceX", 1, 2, 1, 1, 1.0))
sketch10.addConstraint(Sketcher.Constraint("DistanceY", 0, 2, 0, 1, 1.2))
sketch10.addConstraint(Sketcher.Constraint("DistanceX", -1, 1, 0, 2, 9.0))
sketch10.addConstraint(Sketcher.Constraint("DistanceY", 2, 2, -1, 1, 3.0))
sketch10.addConstraint(Sketcher.Constraint("DistanceX", -1, 1, 4, 2, 5.0))
sketch10.addConstraint(Sketcher.Constraint("DistanceX", 12, 2, 9, 2, 3.0))
sketch10.addConstraint(Sketcher.Constraint("DistanceX", 8, 2, -1, 1, 12.8))
sketch10.setExpression("Constraints[41]", "Params.sketch10_width")
sketch10.setExpression("Constraints[42]", "Params.sketch10_height")
pocket5 = doc.addObject("PartDesign::Pocket", "Pocket004")
body.addObject(pocket5)
pocket5.Profile = sketch10
pocket5.setExpression("Length", "Params.pocket5_length")
pocket5.Reversed = True
doc.recompute()

fillet3 = doc.addObject("PartDesign::Fillet", "Fillet002")
body.addObject(fillet3)
fillet3.Base = (pocket5, edges_at(pocket5, [
    (23.8, 0, 2),
    (23.214, 10.714, 2),
    (0, 11.3, 2),
    (-23.214, 10.714, 2),
    (-23.8, 0, 2),
    (-23.214, -10.714, 2),
    (0, -11.3, 2),
    (23.214, -10.714, 2),
]))
fillet3.setExpression("Radius", "Params.fillet3_radius")

# Sketch on XY plane
sketch11 = doc.addObject("Sketcher::SketchObject", "Sketch010")
body.addObject(sketch11)
sketch11.AttachmentSupport = (doc.XY_Plane, [""])
sketch11.MapMode = "FlatFace"
sketch11.AttachmentOffset = App.Placement(V(0, 0, -3), App.Rotation())
add_polygon(sketch11, [(-1.2, -11.2), (-1.2, -10.2), (3.6, -10.2), (3.6, -11.2)])  # lines 0-3
sketch11.addConstraint(Sketcher.Constraint("Vertical", 0))
sketch11.addConstraint(Sketcher.Constraint("Horizontal", 1))
sketch11.addConstraint(Sketcher.Constraint("Vertical", 2))
sketch11.addConstraint(Sketcher.Constraint("Horizontal", 3))
sketch11.addConstraint(Sketcher.Constraint("DistanceY", 0, 1, 0, 2, 1.0))
sketch11.addConstraint(Sketcher.Constraint("DistanceX", 1, 1, 1, 2, 4.9))
sketch11.addConstraint(Sketcher.Constraint("DistanceX", 0, 2, -1, 1, 1.25))
sketch11.addConstraint(Sketcher.Constraint("DistanceY", 0, 2, -1, 1, 10.25))
sketch11.setExpression("Constraints[8]", "Params.sketch11_height")
sketch11.setExpression("Constraints[9]", "Params.sketch11_width")
pad6 = doc.addObject("PartDesign::Pad", "Pad005")
body.addObject(pad6)
pad6.Profile = sketch11
pad6.setExpression("Length", "Params.pad6_length")
pad6.Reversed = True

doc.recompute()
